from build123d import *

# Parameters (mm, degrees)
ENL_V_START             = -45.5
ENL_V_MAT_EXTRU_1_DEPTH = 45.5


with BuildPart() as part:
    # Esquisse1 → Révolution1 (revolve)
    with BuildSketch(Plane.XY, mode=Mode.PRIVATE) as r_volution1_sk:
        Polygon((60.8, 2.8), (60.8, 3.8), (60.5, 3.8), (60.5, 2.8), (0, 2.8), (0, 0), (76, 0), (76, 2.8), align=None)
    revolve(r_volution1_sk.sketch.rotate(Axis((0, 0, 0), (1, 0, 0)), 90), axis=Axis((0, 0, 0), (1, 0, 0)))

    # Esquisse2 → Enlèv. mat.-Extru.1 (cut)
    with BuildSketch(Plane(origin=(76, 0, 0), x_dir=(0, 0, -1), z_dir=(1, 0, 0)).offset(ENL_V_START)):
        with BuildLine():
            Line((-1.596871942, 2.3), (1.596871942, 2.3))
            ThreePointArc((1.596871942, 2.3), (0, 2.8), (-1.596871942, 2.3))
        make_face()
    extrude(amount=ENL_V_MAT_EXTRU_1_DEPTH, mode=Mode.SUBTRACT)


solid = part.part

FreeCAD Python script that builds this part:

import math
import FreeCAD as App
import Part
import Sketcher
from FreeCAD import Vector
Q = App.Units.Quantity


def add_polygon(sketch, points):
    """Adds a closed chain of lines whose ends are joined by coincident constraints."""
    first, n = sketch.GeometryCount, len(points)
    for a, b in zip(points, points[1:] + points[:1]):
        sketch.addGeometry(Part.LineSegment(App.Vector(*a, 0), App.Vector(*b, 0)), False)
    for i in range(n):
        sketch.addConstraint(Sketcher.Constraint("Coincident", first + i, 2, first + (i + 1) % n, 1))

doc = App.newDocument("Part")
body = doc.addObject("PartDesign::Body", "Body")

# Sketch on XY plane
sketch1 = doc.addObject("Sketcher::SketchObject", "Sketch")
body.addObject(sketch1)
sketch1.AttachmentSupport = (doc.XY_Plane, [""])
sketch1.MapMode = "FlatFace"
add_polygon(sketch1, [(60.8, 2.8), (60.8, 3.8), (60.5, 3.8), (60.5, 2.8), (0, 2.8), (0, 0), (76, 0), (76, 2.8)])  # lines 0-7
sketch1.addConstraint(Sketcher.Constraint("Vertical", 0))
sketch1.addConstraint(Sketcher.Constraint("Horizontal", 1))
sketch1.addConstraint(Sketcher.Constraint("Vertical", 2))
sketch1.addConstraint(Sketcher.Constraint("Horizontal", 3))
sketch1.addConstraint(Sketcher.Constraint("Vertical", 4))
sketch1.addConstraint(Sketcher.Constraint("Horizontal", 5))
sketch1.addConstraint(Sketcher.Constraint("Vertical", 6))
sketch1.addConstraint(Sketcher.Constraint("Horizontal", 7))
sketch1.addConstraint(Sketcher.Constraint("Coincident", 4, 2, -1, 1))
sketch1.addConstraint(Sketcher.Constraint("Horizontal", 3, 2, 6, 2))
sketch1.addConstraint(Sketcher.Constraint("DistanceX", 5, 1, 5, 2, Q("76 mm")))
sketch1.addConstraint(Sketcher.Constraint("DistanceY", 0, 1, 0, 2, Q("1 mm")))
sketch1.addConstraint(Sketcher.Constraint("DistanceX", 1, 2, 1, 1, Q("0.3 mm")))
sketch1.addConstraint(Sketcher.Constraint("DistanceX", 3, 2, 3, 1, Q("60.5 mm")))
sketch1.addConstraint(Sketcher.Constraint("DistanceY", 4, 2, 4, 1, Q("2.8 mm")))
revolution = doc.addObject("PartDesign::Revolution", "Revolution")
body.addObject(revolution)
revolution.Profile = sketch1
revolution.ReferenceAxis = (sketch1, ["H_Axis"])
revolution.Angle = 360

# Sketch on YZ plane
sketch2 = doc.addObject("Sketcher::SketchObject", "Sketch001")
body.addObject(sketch2)
sketch2.AttachmentSupport = (doc.YZ_Plane, [""])
sketch2.MapMode = "FlatFace"
sketch2.AttachmentOffset = App.Placement(Vector(0, 0, 30.5), App.Rotation())
sketch2.addGeometry(Part.LineSegment(Vector(2.3, 1.6, 0), Vector(2.3, -1.6, 0)), False)
sketch2.addGeometry(Part.ArcOfCircle(Part.Circle(Vector(0, 0, 0), Vector(0, 0, 1), 2.8), math.radians(-35), math.radians(35)), False)
sketch2.addConstraint(Sketcher.Constraint("Coincident", 0, 1, 1, 2))
sketch2.addConstraint(Sketcher.Constraint("Coincident", 1, 1, 0, 2))
sketch2.addConstraint(Sketcher.Constraint("Vertical", 0))
sketch2.addConstraint(Sketcher.Constraint("Coincident", 1, 3, -1, 1))
sketch2.addConstraint(Sketcher.Constraint("Radius", 1, Q("2.8 mm")))
sketch2.addConstraint(Sketcher.Constraint("DistanceX", -1, 1, 0, 1, Q("2.3 mm")))
pocket1 = doc.addObject("PartDesign::Pocket", "Pocket")
body.addObject(pocket1)
pocket1.Profile = sketch2
pocket1.Length = 45.5
pocket1.Reversed = True

doc.recompute()
